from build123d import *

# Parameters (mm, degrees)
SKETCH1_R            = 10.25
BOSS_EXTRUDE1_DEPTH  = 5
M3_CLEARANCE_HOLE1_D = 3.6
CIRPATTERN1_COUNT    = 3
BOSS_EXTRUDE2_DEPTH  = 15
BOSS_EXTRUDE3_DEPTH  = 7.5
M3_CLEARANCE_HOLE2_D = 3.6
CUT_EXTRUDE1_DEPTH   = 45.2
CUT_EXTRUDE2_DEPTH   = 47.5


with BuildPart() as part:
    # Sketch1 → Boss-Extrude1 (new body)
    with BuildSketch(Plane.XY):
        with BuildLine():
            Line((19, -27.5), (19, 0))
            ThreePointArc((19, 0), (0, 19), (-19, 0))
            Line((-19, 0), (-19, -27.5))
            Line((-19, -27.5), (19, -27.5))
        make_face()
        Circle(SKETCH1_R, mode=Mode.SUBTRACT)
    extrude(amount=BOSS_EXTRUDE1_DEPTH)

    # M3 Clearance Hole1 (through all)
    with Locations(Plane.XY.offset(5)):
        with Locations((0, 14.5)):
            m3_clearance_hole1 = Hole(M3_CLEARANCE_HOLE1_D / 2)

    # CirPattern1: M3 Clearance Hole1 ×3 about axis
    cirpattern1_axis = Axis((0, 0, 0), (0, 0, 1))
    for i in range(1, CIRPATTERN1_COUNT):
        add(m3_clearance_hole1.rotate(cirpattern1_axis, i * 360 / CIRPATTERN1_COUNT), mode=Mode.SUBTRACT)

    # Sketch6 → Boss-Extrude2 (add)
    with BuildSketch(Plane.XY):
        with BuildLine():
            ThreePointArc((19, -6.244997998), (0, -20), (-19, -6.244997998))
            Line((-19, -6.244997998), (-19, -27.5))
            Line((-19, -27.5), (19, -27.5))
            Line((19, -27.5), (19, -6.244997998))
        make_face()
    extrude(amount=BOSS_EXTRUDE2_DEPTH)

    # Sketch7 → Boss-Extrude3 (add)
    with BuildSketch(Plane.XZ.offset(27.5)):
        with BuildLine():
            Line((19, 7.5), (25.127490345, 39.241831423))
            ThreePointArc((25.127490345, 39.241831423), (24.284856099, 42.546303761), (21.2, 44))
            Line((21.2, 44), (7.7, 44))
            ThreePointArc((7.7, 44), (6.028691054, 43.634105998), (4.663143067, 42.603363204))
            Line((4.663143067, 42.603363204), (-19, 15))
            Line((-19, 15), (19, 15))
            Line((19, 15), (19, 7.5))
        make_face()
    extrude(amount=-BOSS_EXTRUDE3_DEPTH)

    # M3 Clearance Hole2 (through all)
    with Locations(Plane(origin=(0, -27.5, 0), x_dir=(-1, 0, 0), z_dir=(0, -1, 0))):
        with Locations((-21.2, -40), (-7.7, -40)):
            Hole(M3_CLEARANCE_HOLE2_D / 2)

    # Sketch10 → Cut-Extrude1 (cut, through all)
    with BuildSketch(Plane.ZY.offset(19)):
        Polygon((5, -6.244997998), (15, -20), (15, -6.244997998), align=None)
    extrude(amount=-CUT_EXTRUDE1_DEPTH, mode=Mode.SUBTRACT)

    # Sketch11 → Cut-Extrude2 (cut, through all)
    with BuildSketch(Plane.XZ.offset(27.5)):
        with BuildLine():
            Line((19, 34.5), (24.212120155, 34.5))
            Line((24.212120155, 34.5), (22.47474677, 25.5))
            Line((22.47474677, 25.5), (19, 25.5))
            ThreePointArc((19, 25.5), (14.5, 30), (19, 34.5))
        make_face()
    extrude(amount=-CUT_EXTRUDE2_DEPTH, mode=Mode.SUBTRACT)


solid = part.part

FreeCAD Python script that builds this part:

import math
import FreeCAD as App
import Part
import Sketcher
Q = App.Units.Quantity


def add_polygon(sketch, points):
    """Adds a closed chain of lines whose ends are joined by coincident constraints."""
    first, n = sketch.GeometryCount, len(points)
    for a, b in zip(points, points[1:] + points[:1]):
        sketch.addGeometry(Part.LineSegment(App.Vector(*a, 0), App.Vector(*b, 0)), False)
    for i in range(n):
        sketch.addConstraint(Sketcher.Constraint("Coincident", first + i, 2, first + (i + 1) % n, 1))

doc = App.newDocument("Part")
params = doc.addObject("Spreadsheet::Sheet", "Params")
for row, (alias, value) in enumerate([
    ("sketch1_radius", "19 mm"),
    ("sketch1_diameter", "20.5 mm"),
    ("sketch1_height", "27.5 mm"),
    ("pad1_length", "5 mm"),
    ("sketch2_diameter", "3.6 mm"),
    ("hole_diameter", "3.6 mm"),
    ("sketch3_radius", "20 mm"),
    ("sketch3_width", "38 mm"),
    ("pad2_length", "15 mm"),
    ("sketch4_radius", "4 mm"),
    ("sketch4_width", "38 mm"),
    ("sketch4_width2", "13.5 mm"),
    ("sketch4_height", "7.5 mm"),
    ("pad3_length", "7.5 mm"),
    ("sketch5_diameter", "3.6 mm"),
    ("hole2_diameter", "3.6 mm"),
    ("sketch6_height", "10 mm"),
    ("sketch7_radius", "4.5 mm"),
], start=1):
    params.set(f"A{row}", alias)
    params.set(f"B{row}", "=" + value)
    params.setAlias(f"B{row}", alias)

body = doc.addObject("PartDesign::Body", "Body")

# Sketch on XY plane
sketch1 = doc.addObject("Sketcher::SketchObject", "Sketch")
body.addObject(sketch1)
sketch1.AttachmentSupport = (doc.XY_Plane, [""])
sketch1.MapMode = "FlatFace"
sketch1.addGeometry(Part.LineSegment(App.Vector(19, -28, 0), App.Vector(19, 0, 0)), False)
sketch1.addGeometry(Part.ArcOfCircle(Part.Circle(App.Vector(0, 0, 0), App.Vector(0, 0, 1), 19), math.radians(0), math.radians(180)), False)
sketch1.addGeometry(Part.LineSegment(App.Vector(-19, 0, 0), App.Vector(-19, -28, 0)), False)
sketch1.addGeometry(Part.LineSegment(App.Vector(-19, -28, 0), App.Vector(19, -28, 0)), False)
sketch1.addGeometry(Part.Circle(App.Vector(0, 0, 0), App.Vector(0, 0, 1), 10), False)
sketch1.addConstraint(Sketcher.Constraint("Tangent", 0, 2, 1, 1))
sketch1.addConstraint(Sketcher.Constraint("Tangent", 1, 2, 2, 1))
sketch1.addConstraint(Sketcher.Constraint("Coincident", 2, 2, 3, 1))
sketch1.addConstraint(Sketcher.Constraint("Coincident", 3, 2, 0, 1))
sketch1.addConstraint(Sketcher.Constraint("Vertical", 0))
sketch1.addConstraint(Sketcher.Constraint("Vertical", 2))
sketch1.addConstraint(Sketcher.Constraint("Horizontal", 3))
sketch1.addConstraint(Sketcher.Constraint("Coincident", 1, 3, -1, 1))
sketch1.addConstraint(Sketcher.Constraint("Coincident", 4, 3, -1, 1))
sketch1.addConstraint(Sketcher.Constraint("Radius", 1, Q("19 mm")))
sketch1.addConstraint(Sketcher.Constraint("Diameter", 4, Q("20.5 mm")))
sketch1.addConstraint(Sketcher.Constraint("DistanceY", 0, 1, 0, 2, Q("27.5 mm")))
sketch1.setExpression("Constraints[9]", "Params.sketch1_radius")
sketch1.setExpression("Constraints[10]", "Params.sketch1_diameter")
sketch1.setExpression("Constraints[11]", "Params.sketch1_height")
pad1 = doc.addObject("PartDesign::Pad", "Pad")
body.addObject(pad1)
pad1.Profile = sketch1
pad1.setExpression("Length", "Params.pad1_length")

# Sketch on XY plane
sketch2 = doc.addObject("Sketcher::SketchObject", "Sketch001")
body.addObject(sketch2)
sketch2.AttachmentSupport = (doc.XY_Plane, [""])
sketch2.MapMode = "FlatFace"
sketch2.AttachmentOffset = App.Placement(App.Vector(0, 0, 5), App.Rotation())
sketch2.addGeometry(Part.Circle(App.Vector(0, 14.5, 0), App.Vector(0, 0, 1), 1.8), False)
sketch2.addConstraint(Sketcher.Constraint("PointOnObject", 0, 3, -2))
sketch2.addConstraint(Sketcher.Constraint("Diameter", 0, Q("3.6 mm")))
sketch2.addConstraint(Sketcher.Constraint("DistanceY", -1, 1, 0, 3, Q("14.5 mm")))
sketch2.setExpression("Constraints[1]", "Params.sketch2_diameter")
doc.recompute()
hole = doc.addObject("PartDesign::Hole", "Hole")
body.addObject(hole)
hole.Profile = sketch2
hole.ThreadType = "None"
hole.setExpression("Diameter", "Params.hole_diameter")
hole.DepthType = "ThroughAll"
doc.recompute()

polarpattern = doc.addObject("PartDesign::PolarPattern", "PolarPattern")
body.addObject(polarpattern)
polarpattern.Originals = [hole]
polarpattern.Axis = (doc.Z_Axis, [""])
polarpattern.Angle = 360
polarpattern.Occurrences = 3
body.Tip = polarpattern

# Sketch on XY plane
sketch3 = doc.addObject("Sketcher::SketchObject", "Sketch002")
body.addObject(sketch3)
sketch3.AttachmentSupport = (doc.XY_Plane, [""])
sketch3.MapMode = "FlatFace"
sketch3.addGeometry(Part.ArcOfCircle(Part.Circle(App.Vector(0, 0, 0), App.Vector(0, 0, 1), 20), math.radians(-162), math.radians(-18)), False)
sketch3.addGeometry(Part.LineSegment(App.Vector(-19, -6, 0), App.Vector(-19, -28, 0)), False)
sketch3.addGeometry(Part.LineSegment(App.Vector(-19, -28, 0), App.Vector(19, -28, 0)), False)
sketch3.addGeometry(Part.LineSegment(App.Vector(19, -28, 0), App.Vector(19, -6, 0)), False)
sketch3.addConstraint(Sketcher.Constraint("Coincident", 0, 1, 1, 1))
sketch3.addConstraint(Sketcher.Constraint("Coincident", 1, 2, 2, 1))
sketch3.addConstraint(Sketcher.Constraint("Coincident", 2, 2, 3, 1))
sketch3.addConstraint(Sketcher.Constraint("Coincident", 3, 2, 0, 2))
sketch3.addConstraint(Sketcher.Constraint("Vertical", 1))
sketch3.addConstraint(Sketcher.Constraint("Horizontal", 2))
sketch3.addConstraint(Sketcher.Constraint("Vertical", 3))
sketch3.addConstraint(Sketcher.Constraint("Coincident", 0, 3, -1, 1))
sketch3.addConstraint(Sketcher.Constraint("Horizontal", 0, 1, 3, 2))
sketch3.addConstraint(Sketcher.Constraint("Radius", 0, Q("20 mm")))
sketch3.addConstraint(Sketcher.Constraint("DistanceX", 2, 1, 2, 2, Q("38 mm")))
sketch3.addConstraint(Sketcher.Constraint("DistanceY", 1, 2, -1, 1, Q("27.5 mm")))
sketch3.setExpression("Constraints[9]", "Params.sketch3_radius")
sketch3.setExpression("Constraints[10]", "Params.sketch3_width")
pad2 = doc.addObject("PartDesign::Pad", "Pad001")
body.addObject(pad2)
pad2.Profile = sketch3
pad2.setExpression("Length", "Params.pad2_length")

# Sketch on XZ plane
sketch4 = doc.addObject("Sketcher::SketchObject", "Sketch003")
body.addObject(sketch4)
sketch4.AttachmentSupport = (doc.XZ_Plane, [""])
sketch4.MapMode = "FlatFace"
sketch4.AttachmentOffset = App.Placement(App.Vector(0, 0, 27.5), App.Rotation())
sketch4.addGeometry(Part.LineSegment(App.Vector(19, 7.5, 0), App.Vector(25.1, 39.2, 0)), False)
sketch4.addGeometry(Part.ArcOfCircle(Part.Circle(App.Vector(21.2, 40, 0), App.Vector(0, 0, 1), 4), math.radians(-11), math.radians(90)), False)
sketch4.addGeometry(Part.LineSegment(App.Vector(21.2, 44, 0), App.Vector(7.7, 44, 0)), False)
sketch4.addGeometry(Part.ArcOfCircle(Part.Circle(App.Vector(7.7, 40, 0), App.Vector(0, 0, 1), 4), math.radians(90), math.radians(139)), False)
sketch4.addGeometry(Part.LineSegment(App.Vector(4.7, 42.6, 0), App.Vector(-19, 15, 0)), False)
sketch4.addGeometry(Part.LineSegment(App.Vector(-19, 15, 0), App.Vector(19, 15, 0)), False)
sketch4.addGeometry(Part.LineSegment(App.Vector(19, 15, 0), App.Vector(19, 7.5, 0)), False)
sketch4.addConstraint(Sketcher.Constraint("Tangent", 0, 2, 1, 1))
sketch4.addConstraint(Sketcher.Constraint("Tangent", 1, 2, 2, 1))
sketch4.addConstraint(Sketcher.Constraint("Tangent", 2, 2, 3, 1))
sketch4.addConstraint(Sketcher.Constraint("Tangent", 3, 2, 4, 1))
sketch4.addConstraint(Sketcher.Constraint("Coincident", 4, 2, 5, 1))
sketch4.addConstraint(Sketcher.Constraint("Coincident", 5, 2, 6, 1))
sketch4.addConstraint(Sketcher.Constraint("Coincident", 6, 2, 0, 1))
sketch4.addConstraint(Sketcher.Constraint("Horizontal", 2))
sketch4.addConstraint(Sketcher.Constraint("Horizontal", 5))
sketch4.addConstraint(Sketcher.Constraint("Vertical", 6))
sketch4.addConstraint(Sketcher.Constraint("Equal", 1, 3))
sketch4.addConstraint(Sketcher.Constraint("Radius", 1, Q("4 mm")))
sketch4.addConstraint(Sketcher.Constraint("DistanceX", 5, 1, 5, 2, Q("38 mm")))
sketch4.addConstraint(Sketcher.Constraint("DistanceX", 2, 2, 2, 1, Q("13.5 mm")))
sketch4.addConstraint(Sketcher.Constraint("DistanceY", 6, 2, 6, 1, Q("7.5 mm")))
sketch4.addConstraint(Sketcher.Constraint("DistanceY", -1, 1, 1, 3, Q("40 mm")))
sketch4.addConstraint(Sketcher.Constraint("DistanceX", 4, 2, -1, 1, Q("19 mm")))
sketch4.addConstraint(Sketcher.Constraint("DistanceY", -1, 1, 4, 2, Q("15 mm")))
sketch4.addConstraint(Sketcher.Constraint("DistanceX", -1, 1, 1, 3, Q("21.2 mm")))
sketch4.setExpression("Constraints[11]", "Params.sketch4_radius")
sketch4.setExpression("Constraints[12]", "Params.sketch4_width")
sketch4.setExpression("Constraints[13]", "Params.sketch4_width2")
sketch4.setExpression("Constraints[14]", "Params.sketch4_height")
pad3 = doc.addObject("PartDesign::Pad", "Pad002")
body.addObject(pad3)
pad3.Profile = sketch4
pad3.setExpression("Length", "Params.pad3_length")
pad3.Reversed = True

# Sketch on XZ plane
sketch5 = doc.addObject("Sketcher::SketchObject", "Sketch004")
body.addObject(sketch5)
sketch5.AttachmentSupport = (doc.XZ_Plane, [""])
sketch5.MapMode = "FlatFace"
sketch5.AttachmentOffset = App.Placement(App.Vector(0, 0, 27.5), App.Rotation())
sketch5.addGeometry(Part.Circle(App.Vector(21.2, 40, 0), App.Vector(0, 0, 1), 1.8), False)
sketch5.addGeometry(Part.Circle(App.Vector(7.7, 40, 0), App.Vector(0, 0, 1), 1.8), False)
sketch5.addConstraint(Sketcher.Constraint("Equal", 0, 1))
sketch5.addConstraint(Sketcher.Constraint("Horizontal", 0, 3, 1, 3))
sketch5.addConstraint(Sketcher.Constraint("Diameter", 0, Q("3.6 mm")))
sketch5.addConstraint(Sketcher.Constraint("DistanceY", -1, 1, 0, 3, Q("40 mm")))
sketch5.addConstraint(Sketcher.Constraint("DistanceX", -1, 1, 0, 3, Q("21.2 mm")))
sketch5.addConstraint(Sketcher.Constraint("DistanceX", -1, 1, 1, 3, Q("7.7 mm")))
sketch5.setExpression("Constraints[2]", "Params.sketch5_diameter")
doc.recompute()
hole2 = doc.addObject("PartDesign::Hole", "Hole001")
body.addObject(hole2)
hole2.Profile = sketch5
hole2.ThreadType = "None"
hole2.setExpression("Diameter", "Params.hole2_diameter")
hole2.DepthType = "ThroughAll"

# Sketch on YZ plane
sketch6 = doc.addObject("Sketcher::SketchObject", "Sketch005")
body.addObject(sketch6)
sketch6.AttachmentSupport = (doc.YZ_Plane, [""])
sketch6.MapMode = "FlatFace"
sketch6.AttachmentOffset = App.Placement(App.Vector(0, 0, -19), App.Rotation())
add_polygon(sketch6, [(-6, 5), (-20, 15), (-6, 15)])  # lines 0-2
sketch6.addConstraint(Sketcher.Constraint("Horizontal", 1))
sketch6.addConstraint(Sketcher.Constraint("Vertical", 2))
sketch6.addConstraint(Sketcher.Constraint("DistanceY", 2, 2, 2, 1, Q("10 mm")))
sketch6.addConstraint(Sketcher.Constraint("DistanceX", 0, 2, -1, 1, Q("20 mm")))
sketch6.addConstraint(Sketcher.Constraint("DistanceY", -1, 1, 0, 2, Q("15 mm")))
sketch6.addConstraint(Sketcher.Constraint("DistanceX", 1, 1, 1, 2, Q("13.755002 mm")))
sketch6.setExpression("Constraints[5]", "Params.sketch6_height")
pocket1 = doc.addObject("PartDesign::Pocket", "Pocket")
body.addObject(pocket1)
pocket1.Profile = sketch6
pocket1.Type = "ThroughAll"
pocket1.Reversed = True

# Sketch on XZ plane
sketch7 = doc.addObject("Sketcher::SketchObject", "Sketch006")
body.addObject(sketch7)
sketch7.AttachmentSupport = (doc.XZ_Plane, [""])
sketch7.MapMode = "FlatFace"
sketch7.AttachmentOffset = App.Placement(App.Vector(0, 0, 27.5), App.Rotation())
sketch7.addGeometry(Part.LineSegment(App.Vector(24.2, 34.5, 0), App.Vector(19, 34.5, 0)), False)
sketch7.addGeometry(Part.ArcOfCircle(Part.Circle(App.Vector(19, 30, 0), App.Vector(0, 0, 1), 4.5), math.radians(90), math.radians(270)), False)
sketch7.addGeometry(Part.LineSegment(App.Vector(19, 25.5, 0), App.Vector(22.5, 25.5, 0)), False)
sketch7.addGeometry(Part.LineSegment(App.Vector(22.5, 25.5, 0), App.Vector(24.2, 34.5, 0)), False)
sketch7.addConstraint(Sketcher.Constraint("Tangent", 0, 2, 1, 1))
sketch7.addConstraint(Sketcher.Constraint("Tangent", 1, 2, 2, 1))
sketch7.addConstraint(Sketcher.Constraint("Coincident", 2, 2, 3, 1))
sketch7.addConstraint(Sketcher.Constraint("Coincident", 3, 2, 0, 1))
sketch7.addConstraint(Sketcher.Constraint("Horizontal", 0))
sketch7.addConstraint(Sketcher.Constraint("Horizontal", 2))
sketch7.addConstraint(Sketcher.Constraint("Radius", 1, Q("4.5 mm")))
sketch7.addConstraint(Sketcher.Constraint("DistanceX", -1, 1, 1, 3, Q("19 mm")))
sketch7.addConstraint(Sketcher.Constraint("DistanceY", -1, 1, 1, 3, Q("30 mm")))
sketch7.addConstraint(Sketcher.Constraint("DistanceX", 0, 2, 0, 1, Q("5.21212 mm")))
sketch7.addConstraint(Sketcher.Constraint("Distance", 3, Q("9.166159 mm")))
sketch7.setExpression("Constraints[6]", "Params.sketch7_radius")
pocket2 = doc.addObject("PartDesign::Pocket", "Pocket001")
body.addObject(pocket2)
pocket2.Profile = sketch7
pocket2.Type = "ThroughAll"

doc.recompute()
